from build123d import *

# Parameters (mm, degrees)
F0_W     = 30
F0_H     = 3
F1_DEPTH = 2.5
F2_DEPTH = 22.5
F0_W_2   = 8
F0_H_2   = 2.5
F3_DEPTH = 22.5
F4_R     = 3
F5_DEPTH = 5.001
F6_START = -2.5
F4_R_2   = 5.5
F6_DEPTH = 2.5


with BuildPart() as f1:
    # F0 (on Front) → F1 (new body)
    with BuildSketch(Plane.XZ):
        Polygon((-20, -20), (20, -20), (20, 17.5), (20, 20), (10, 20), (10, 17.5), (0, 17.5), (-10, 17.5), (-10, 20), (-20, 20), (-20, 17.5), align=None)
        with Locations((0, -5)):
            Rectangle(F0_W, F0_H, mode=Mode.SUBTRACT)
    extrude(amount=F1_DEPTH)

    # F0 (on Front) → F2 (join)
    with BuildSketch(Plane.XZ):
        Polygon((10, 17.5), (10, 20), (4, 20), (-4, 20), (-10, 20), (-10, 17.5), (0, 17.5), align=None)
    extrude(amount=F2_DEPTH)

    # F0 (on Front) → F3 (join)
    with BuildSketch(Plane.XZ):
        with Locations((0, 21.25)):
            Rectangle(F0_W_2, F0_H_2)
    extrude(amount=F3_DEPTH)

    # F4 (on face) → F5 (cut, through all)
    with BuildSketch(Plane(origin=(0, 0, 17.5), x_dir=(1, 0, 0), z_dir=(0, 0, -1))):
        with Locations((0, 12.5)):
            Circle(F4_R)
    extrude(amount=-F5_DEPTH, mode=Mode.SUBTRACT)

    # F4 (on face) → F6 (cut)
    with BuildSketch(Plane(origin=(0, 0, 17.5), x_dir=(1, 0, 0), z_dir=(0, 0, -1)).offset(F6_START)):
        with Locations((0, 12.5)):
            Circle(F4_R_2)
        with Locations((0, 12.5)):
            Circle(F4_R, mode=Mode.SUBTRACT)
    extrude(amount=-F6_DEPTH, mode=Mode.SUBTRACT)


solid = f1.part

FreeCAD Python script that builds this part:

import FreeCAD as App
import Part
import Sketcher
from FreeCAD import Vector
Q = App.Units.Quantity

doc = App.newDocument("Part")
body = doc.addObject("PartDesign::Body", "Body")

# Sketch on XZ plane
sketch1 = doc.addObject("Sketcher::SketchObject", "Sketch")
body.addObject(sketch1)
sketch1.AttachmentSupport = (doc.XZ_Plane, [""])
sketch1.MapMode = "FlatFace"
sketch1.addGeometry([
    Part.LineSegment(Vector(-20, -20, 0), Vector(20, -20, 0)),  # 0
    Part.LineSegment(Vector(20, -20, 0), Vector(20, 20, 0)),  # 1
    Part.LineSegment(Vector(20, 20, 0), Vector(10, 20, 0)),  # 2
    Part.LineSegment(Vector(10, 20, 0), Vector(10, 17.5, 0)),  # 3
    Part.LineSegment(Vector(10, 17.5, 0), Vector(-10, 17.5, 0)),  # 4
    Part.LineSegment(Vector(-10, 17.5, 0), Vector(-10, 20, 0)),  # 5
    Part.LineSegment(Vector(-10, 20, 0), Vector(-20, 20, 0)),  # 6
    Part.LineSegment(Vector(-20, 20, 0), Vector(-20, -20, 0)),  # 7
    Part.LineSegment(Vector(15, -6.5, 0), Vector(-15, -6.5, 0)),  # 8
    Part.LineSegment(Vector(-15, -6.5, 0), Vector(-15, -3.5, 0)),  # 9
    Part.LineSegment(Vector(-15, -3.5, 0), Vector(15, -3.5, 0)),  # 10
    Part.LineSegment(Vector(15, -3.5, 0), Vector(15, -6.5, 0)),  # 11
], False)
sketch1.addConstraint([
    Sketcher.Constraint("Coincident", 0, 2, 1, 1),
    Sketcher.Constraint("Coincident", 1, 2, 2, 1),
    Sketcher.Constraint("Coincident", 2, 2, 3, 1),
    Sketcher.Constraint("Coincident", 3, 2, 4, 1),
    Sketcher.Constraint("Coincident", 4, 2, 5, 1),
    Sketcher.Constraint("Coincident", 5, 2, 6, 1),
    Sketcher.Constraint("Coincident", 6, 2, 7, 1),
    Sketcher.Constraint("Coincident", 7, 2, 0, 1),
    Sketcher.Constraint("Coincident", 8, 2, 9, 1),
    Sketcher.Constraint("Coincident", 9, 2, 10, 1),
    Sketcher.Constraint("Coincident", 10, 2, 11, 1),
    Sketcher.Constraint("Coincident", 11, 2, 8, 1),
    Sketcher.Constraint("Horizontal", 0),
    Sketcher.Constraint("Vertical", 1),
    Sketcher.Constraint("Horizontal", 2),
    Sketcher.Constraint("Vertical", 3),
    Sketcher.Constraint("Horizontal", 4),
    Sketcher.Constraint("Vertical", 5),
    Sketcher.Constraint("Horizontal", 6),
    Sketcher.Constraint("Vertical", 7),
    Sketcher.Constraint("Horizontal", 8),
    Sketcher.Constraint("Vertical", 9),
    Sketcher.Constraint("Horizontal", 10),
    Sketcher.Constraint("Vertical", 11),
    Sketcher.Constraint("Symmetric", 0, 2, 6, 2, -1, 1),
    Sketcher.Constraint("Symmetric", 2, 2, 5, 2, -2),
    Sketcher.Constraint("Equal", 0, 1),
    Sketcher.Constraint("DistanceX", 0, 1, 0, 2, Q("40 mm")),
    Sketcher.Constraint("DistanceX", 2, 2, 2, 1, Q("10 mm")),
    Sketcher.Constraint("DistanceX", 8, 2, 8, 1, Q("30 mm")),
    Sketcher.Constraint("DistanceY", 9, 1, 9, 2, Q("3 mm")),
    Sketcher.Constraint("DistanceY", 3, 2, 3, 1, Q("2.5 mm")),
    Sketcher.Constraint("DistanceX", 8, 2, -1, 1, Q("15 mm")),
    Sketcher.Constraint("DistanceY", 8, 2, 4, 2, Q("24 mm")),
])
pad1 = doc.addObject("PartDesign::Pad", "Pad")
body.addObject(pad1)
pad1.Profile = sketch1
pad1.Length = 2.5

# Sketch on XZ plane
sketch2 = doc.addObject("Sketcher::SketchObject", "Sketch001")
body.addObject(sketch2)
sketch2.AttachmentSupport = (doc.XZ_Plane, [""])
sketch2.MapMode = "FlatFace"
sketch2.addGeometry([
    Part.LineSegment(Vector(10, 17.5, 0), Vector(10, 20, 0)),
    Part.LineSegment(Vector(10, 20, 0), Vector(-10, 20, 0)),
    Part.LineSegment(Vector(-10, 20, 0), Vector(-10, 17.5, 0)),
    Part.LineSegment(Vector(-10, 17.5, 0), Vector(10, 17.5, 0)),
], False)
sketch2.addConstraint([
    Sketcher.Constraint("Coincident", 0, 2, 1, 1),
    Sketcher.Constraint("Coincident", 1, 2, 2, 1),
    Sketcher.Constraint("Coincident", 2, 2, 3, 1),
    Sketcher.Constraint("Coincident", 3, 2, 0, 1),
    Sketcher.Constraint("Vertical", 0),
    Sketcher.Constraint("Horizontal", 1),
    Sketcher.Constraint("Vertical", 2),
    Sketcher.Constraint("Horizontal", 3),
    Sketcher.Constraint("DistanceX", 1, 2, 1, 1, Q("20 mm")),
    Sketcher.Constraint("DistanceY", 0, 1, 0, 2, Q("2.5 mm")),
    Sketcher.Constraint("DistanceX", -1, 1, 0, 2, Q("10 mm")),
    Sketcher.Constraint("DistanceY", -1, 1, 0, 2, Q("20 mm")),
])
pad2 = doc.addObject("PartDesign::Pad", "Pad001")
body.addObject(pad2)
pad2.Profile = sketch2
pad2.Length = 22.5

# Sketch on XZ plane
sketch3 = doc.addObject("Sketcher::SketchObject", "Sketch002")
body.addObject(sketch3)
sketch3.AttachmentSupport = (doc.XZ_Plane, [""])
sketch3.MapMode = "FlatFace"
sketch3.addGeometry([
    Part.LineSegment(Vector(-4, 22.5, 0), Vector(-4, 20, 0)),
    Part.LineSegment(Vector(-4, 20, 0), Vector(4, 20, 0)),
    Part.LineSegment(Vector(4, 20, 0), Vector(4, 22.5, 0)),
    Part.LineSegment(Vector(4, 22.5, 0), Vector(-4, 22.5, 0)),
], False)
sketch3.addConstraint([
    Sketcher.Constraint("Coincident", 0, 2, 1, 1),
    Sketcher.Constraint("Coincident", 1, 2, 2, 1),
    Sketcher.Constraint("Coincident", 2, 2, 3, 1),
    Sketcher.Constraint("Coincident", 3, 2, 0, 1),
    Sketcher.Constraint("Vertical", 0),
    Sketcher.Constraint("Horizontal", 1),
    Sketcher.Constraint("Vertical", 2),
    Sketcher.Constraint("Horizontal", 3),
    Sketcher.Constraint("DistanceX", 1, 1, 1, 2, Q("8 mm")),
    Sketcher.Constraint("DistanceY", 0, 2, 0, 1, Q("2.5 mm")),
    Sketcher.Constraint("DistanceX", 0, 2, -1, 1, Q("4 mm")),
    Sketcher.Constraint("DistanceY", -1, 1, 0, 2, Q("20 mm")),
])
pad3 = doc.addObject("PartDesign::Pad", "Pad002")
body.addObject(pad3)
pad3.Profile = sketch3
pad3.Length = 22.5

# Sketch on XY plane
sketch4 = doc.addObject("Sketcher::SketchObject", "Sketch003")
body.addObject(sketch4)
sketch4.AttachmentSupport = (doc.XY_Plane, [""])
sketch4.MapMode = "FlatFace"
sketch4.AttachmentOffset = App.Placement(Vector(0, 0, 17.5), App.Rotation())
sketch4.addGeometry(Part.Circle(Vector(0, -12.5, 0), Vector(0, 0, 1), 3), False)
sketch4.addConstraint([
    Sketcher.Constraint("PointOnObject", 0, 3, -2),
    Sketcher.Constraint("Diameter", 0, Q("6 mm")),
    Sketcher.Constraint("DistanceY", 0, 3, -1, 1, Q("12.5 mm")),
])
pocket1 = doc.addObject("PartDesign::Pocket", "Pocket")
body.addObject(pocket1)
pocket1.Profile = sketch4
pocket1.Type = "ThroughAll"
pocket1.Reversed = True

# Sketch on XY plane
sketch5 = doc.addObject("Sketcher::SketchObject", "Sketch004")
body.addObject(sketch5)
sketch5.AttachmentSupport = (doc.XY_Plane, [""])
sketch5.MapMode = "FlatFace"
sketch5.AttachmentOffset = App.Placement(Vector(0, 0, 20), App.Rotation())
sketch5.addGeometry([
    Part.Circle(Vector(0, -12.5, 0), Vector(0, 0, 1), 5.5),
    Part.Circle(Vector(0, -12.5, 0), Vector(0, 0, 1), 3),
], False)
sketch5.addConstraint([
    Sketcher.Constraint("Coincident", 1, 3, 0, 3),
    Sketcher.Constraint("PointOnObject", 0, 3, -2),
    Sketcher.Constraint("Diameter", 0, Q("11 mm")),
    Sketcher.Constraint("Diameter", 1, Q("6 mm")),
    Sketcher.Constraint("DistanceY", 0, 3, -1, 1, Q("12.5 mm")),
])
pocket2 = doc.addObject("PartDesign::Pocket", "Pocket001")
body.addObject(pocket2)
pocket2.Profile = sketch5
pocket2.Length = 2.5
pocket2.Reversed = True

doc.recompute()
